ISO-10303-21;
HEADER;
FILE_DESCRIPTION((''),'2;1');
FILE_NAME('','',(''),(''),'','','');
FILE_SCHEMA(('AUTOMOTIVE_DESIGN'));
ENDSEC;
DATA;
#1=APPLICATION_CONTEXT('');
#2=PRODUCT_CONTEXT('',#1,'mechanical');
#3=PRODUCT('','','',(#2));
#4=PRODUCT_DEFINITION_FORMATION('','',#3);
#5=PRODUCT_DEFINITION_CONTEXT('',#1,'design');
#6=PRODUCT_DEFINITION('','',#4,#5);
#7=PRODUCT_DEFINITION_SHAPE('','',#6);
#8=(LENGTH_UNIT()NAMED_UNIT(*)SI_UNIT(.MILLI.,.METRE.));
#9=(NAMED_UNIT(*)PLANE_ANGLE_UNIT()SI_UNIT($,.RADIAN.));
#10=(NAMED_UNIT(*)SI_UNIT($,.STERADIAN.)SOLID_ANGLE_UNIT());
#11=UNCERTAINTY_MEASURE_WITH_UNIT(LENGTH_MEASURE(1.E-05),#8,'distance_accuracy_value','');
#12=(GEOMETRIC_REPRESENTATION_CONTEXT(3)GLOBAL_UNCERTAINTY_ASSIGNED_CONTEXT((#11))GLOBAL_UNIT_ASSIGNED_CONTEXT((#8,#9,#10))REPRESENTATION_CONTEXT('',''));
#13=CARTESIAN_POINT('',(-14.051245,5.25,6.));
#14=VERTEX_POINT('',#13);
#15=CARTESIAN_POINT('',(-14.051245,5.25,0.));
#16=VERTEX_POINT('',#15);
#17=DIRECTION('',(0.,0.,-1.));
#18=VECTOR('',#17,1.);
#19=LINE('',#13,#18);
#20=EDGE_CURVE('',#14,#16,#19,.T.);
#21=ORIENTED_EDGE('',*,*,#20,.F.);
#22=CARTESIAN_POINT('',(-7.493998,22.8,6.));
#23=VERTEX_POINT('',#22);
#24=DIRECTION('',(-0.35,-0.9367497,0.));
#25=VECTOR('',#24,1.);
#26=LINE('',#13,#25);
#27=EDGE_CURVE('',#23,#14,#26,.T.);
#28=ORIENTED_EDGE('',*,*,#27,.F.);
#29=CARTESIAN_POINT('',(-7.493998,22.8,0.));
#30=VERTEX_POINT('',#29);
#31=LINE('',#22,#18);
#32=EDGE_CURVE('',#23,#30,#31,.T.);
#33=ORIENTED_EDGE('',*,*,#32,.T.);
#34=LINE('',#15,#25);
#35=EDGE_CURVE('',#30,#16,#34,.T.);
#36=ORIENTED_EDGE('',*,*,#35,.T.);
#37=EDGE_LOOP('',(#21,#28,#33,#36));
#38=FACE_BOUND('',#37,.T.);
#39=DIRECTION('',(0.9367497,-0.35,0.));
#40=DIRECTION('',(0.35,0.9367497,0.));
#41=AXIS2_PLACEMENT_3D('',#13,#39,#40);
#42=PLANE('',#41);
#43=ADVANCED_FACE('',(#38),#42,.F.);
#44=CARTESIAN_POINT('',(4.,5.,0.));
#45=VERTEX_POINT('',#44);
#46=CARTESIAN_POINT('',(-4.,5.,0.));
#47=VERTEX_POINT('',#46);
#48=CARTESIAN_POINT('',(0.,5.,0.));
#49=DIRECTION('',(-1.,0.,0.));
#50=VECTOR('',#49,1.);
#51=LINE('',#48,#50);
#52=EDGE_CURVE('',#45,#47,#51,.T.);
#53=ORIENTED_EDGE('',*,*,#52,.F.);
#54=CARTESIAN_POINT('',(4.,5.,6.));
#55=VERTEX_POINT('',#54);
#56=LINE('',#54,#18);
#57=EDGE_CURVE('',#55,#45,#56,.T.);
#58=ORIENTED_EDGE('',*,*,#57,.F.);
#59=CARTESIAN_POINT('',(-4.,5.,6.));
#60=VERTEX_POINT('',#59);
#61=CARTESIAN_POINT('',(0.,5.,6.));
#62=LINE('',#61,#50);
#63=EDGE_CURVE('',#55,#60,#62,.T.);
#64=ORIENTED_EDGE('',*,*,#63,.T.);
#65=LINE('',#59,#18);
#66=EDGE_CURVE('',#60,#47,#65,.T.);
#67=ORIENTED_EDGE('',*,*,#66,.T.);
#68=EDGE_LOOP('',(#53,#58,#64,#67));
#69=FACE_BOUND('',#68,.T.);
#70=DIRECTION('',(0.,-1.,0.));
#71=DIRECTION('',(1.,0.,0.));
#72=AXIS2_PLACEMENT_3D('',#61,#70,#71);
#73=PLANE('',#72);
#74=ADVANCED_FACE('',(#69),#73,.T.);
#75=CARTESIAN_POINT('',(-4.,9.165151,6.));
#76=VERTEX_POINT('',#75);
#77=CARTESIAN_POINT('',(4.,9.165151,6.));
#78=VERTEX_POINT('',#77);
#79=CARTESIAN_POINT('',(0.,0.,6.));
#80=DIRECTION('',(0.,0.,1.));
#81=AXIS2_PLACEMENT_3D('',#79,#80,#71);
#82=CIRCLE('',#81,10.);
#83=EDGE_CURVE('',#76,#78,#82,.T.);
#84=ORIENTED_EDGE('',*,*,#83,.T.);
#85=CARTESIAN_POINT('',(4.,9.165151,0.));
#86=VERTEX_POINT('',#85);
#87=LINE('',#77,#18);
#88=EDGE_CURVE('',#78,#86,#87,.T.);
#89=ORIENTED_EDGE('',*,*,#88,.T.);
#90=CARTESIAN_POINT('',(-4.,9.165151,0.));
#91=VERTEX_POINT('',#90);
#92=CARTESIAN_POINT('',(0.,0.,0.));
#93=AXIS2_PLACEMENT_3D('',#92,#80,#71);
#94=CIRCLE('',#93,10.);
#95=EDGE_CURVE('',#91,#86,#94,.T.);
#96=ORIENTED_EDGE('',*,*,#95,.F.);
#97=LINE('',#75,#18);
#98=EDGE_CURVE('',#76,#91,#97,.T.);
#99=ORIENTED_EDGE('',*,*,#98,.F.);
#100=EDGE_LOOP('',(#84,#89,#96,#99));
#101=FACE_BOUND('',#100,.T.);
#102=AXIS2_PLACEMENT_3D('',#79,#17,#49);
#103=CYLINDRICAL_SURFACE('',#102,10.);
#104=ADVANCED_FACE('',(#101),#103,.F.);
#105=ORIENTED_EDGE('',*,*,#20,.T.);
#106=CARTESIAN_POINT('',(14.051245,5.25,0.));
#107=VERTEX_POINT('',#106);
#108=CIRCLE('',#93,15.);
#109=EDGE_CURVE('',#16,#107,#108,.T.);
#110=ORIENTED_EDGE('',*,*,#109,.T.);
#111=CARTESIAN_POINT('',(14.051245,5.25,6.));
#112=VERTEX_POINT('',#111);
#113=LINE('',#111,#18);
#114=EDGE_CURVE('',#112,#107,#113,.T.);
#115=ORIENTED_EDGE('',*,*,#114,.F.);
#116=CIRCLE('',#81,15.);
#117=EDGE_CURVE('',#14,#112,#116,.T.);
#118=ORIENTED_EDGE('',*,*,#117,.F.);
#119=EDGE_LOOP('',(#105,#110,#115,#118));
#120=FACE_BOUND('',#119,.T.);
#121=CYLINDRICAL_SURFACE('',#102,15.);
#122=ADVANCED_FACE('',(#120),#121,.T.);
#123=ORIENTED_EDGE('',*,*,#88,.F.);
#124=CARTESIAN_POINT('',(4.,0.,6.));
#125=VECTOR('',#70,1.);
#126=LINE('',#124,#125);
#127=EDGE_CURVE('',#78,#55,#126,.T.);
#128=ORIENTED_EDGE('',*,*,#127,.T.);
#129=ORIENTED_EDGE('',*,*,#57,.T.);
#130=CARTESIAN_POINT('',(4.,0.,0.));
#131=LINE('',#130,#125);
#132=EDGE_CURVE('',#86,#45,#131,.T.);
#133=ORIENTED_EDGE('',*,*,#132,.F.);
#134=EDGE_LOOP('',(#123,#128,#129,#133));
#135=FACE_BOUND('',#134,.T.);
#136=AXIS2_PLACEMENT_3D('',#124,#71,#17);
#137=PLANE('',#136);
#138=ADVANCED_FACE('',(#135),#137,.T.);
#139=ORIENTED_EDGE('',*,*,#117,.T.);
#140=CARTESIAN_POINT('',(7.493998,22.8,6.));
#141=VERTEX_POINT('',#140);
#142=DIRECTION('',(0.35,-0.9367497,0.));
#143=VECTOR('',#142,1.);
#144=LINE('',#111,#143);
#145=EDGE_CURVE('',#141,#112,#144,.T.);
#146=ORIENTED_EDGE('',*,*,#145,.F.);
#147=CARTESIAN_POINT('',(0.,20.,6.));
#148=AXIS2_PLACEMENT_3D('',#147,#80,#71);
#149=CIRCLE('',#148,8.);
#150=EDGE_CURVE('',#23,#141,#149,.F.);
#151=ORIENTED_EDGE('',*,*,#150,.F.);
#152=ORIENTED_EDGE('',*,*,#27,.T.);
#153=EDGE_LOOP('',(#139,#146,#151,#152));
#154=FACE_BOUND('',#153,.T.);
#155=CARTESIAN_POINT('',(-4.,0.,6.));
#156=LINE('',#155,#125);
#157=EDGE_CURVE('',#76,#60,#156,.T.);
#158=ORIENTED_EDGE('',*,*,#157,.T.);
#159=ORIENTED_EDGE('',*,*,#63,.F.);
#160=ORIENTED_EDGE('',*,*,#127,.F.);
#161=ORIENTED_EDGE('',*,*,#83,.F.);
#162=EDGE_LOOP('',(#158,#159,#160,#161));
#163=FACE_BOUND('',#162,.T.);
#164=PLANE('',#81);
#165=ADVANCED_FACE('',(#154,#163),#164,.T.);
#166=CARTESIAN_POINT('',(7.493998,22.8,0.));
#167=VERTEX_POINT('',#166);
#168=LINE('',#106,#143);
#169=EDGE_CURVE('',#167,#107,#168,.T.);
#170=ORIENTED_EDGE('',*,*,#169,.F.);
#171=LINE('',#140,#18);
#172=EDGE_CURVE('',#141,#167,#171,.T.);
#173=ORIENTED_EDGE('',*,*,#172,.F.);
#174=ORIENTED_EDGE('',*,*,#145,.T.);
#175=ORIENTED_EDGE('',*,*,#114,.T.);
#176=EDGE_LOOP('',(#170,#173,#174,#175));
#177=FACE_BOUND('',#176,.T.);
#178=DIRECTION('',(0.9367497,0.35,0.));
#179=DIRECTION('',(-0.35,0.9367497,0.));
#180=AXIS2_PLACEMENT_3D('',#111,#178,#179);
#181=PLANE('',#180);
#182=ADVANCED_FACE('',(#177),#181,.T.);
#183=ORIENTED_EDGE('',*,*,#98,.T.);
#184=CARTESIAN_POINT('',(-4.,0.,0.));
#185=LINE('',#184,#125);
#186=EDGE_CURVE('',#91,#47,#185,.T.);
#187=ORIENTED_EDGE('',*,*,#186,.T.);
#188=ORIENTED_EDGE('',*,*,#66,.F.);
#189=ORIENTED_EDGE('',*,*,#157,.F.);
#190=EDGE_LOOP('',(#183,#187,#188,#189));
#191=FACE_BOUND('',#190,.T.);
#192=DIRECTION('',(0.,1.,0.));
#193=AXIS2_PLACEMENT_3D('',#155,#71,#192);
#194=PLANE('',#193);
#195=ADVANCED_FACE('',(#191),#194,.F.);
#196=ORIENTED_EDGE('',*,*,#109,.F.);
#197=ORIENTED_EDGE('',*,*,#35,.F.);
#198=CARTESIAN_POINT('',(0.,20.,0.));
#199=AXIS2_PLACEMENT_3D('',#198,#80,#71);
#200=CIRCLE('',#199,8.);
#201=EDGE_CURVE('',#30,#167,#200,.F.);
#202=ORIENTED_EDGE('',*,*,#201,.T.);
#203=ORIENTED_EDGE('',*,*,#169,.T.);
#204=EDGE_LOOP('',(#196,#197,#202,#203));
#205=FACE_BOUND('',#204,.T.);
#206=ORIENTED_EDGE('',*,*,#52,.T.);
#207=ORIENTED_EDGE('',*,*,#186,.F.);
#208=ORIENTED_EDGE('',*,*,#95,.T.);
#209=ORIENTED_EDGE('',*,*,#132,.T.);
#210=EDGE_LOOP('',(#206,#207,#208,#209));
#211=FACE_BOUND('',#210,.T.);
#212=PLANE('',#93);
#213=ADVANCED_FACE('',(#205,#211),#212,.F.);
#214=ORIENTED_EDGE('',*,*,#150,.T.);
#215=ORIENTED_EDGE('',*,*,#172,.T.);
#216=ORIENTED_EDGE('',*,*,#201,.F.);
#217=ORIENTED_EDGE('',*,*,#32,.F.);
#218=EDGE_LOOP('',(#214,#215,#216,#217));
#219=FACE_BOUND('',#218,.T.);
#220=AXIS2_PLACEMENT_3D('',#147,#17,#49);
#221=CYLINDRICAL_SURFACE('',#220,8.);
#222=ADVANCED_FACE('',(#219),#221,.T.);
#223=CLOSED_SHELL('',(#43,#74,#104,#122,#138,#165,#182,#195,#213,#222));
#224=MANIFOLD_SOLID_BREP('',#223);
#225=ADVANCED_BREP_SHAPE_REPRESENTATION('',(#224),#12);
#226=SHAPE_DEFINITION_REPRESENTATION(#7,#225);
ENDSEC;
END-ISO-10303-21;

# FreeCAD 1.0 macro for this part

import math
import FreeCAD as App
import Part
import Sketcher
from FreeCAD import Vector
Q = App.Units.Quantity

doc = App.newDocument("Part")
params = doc.addObject("Spreadsheet::Sheet", "Params")
for row, (alias, value) in enumerate([
    ("sketch1_radius", "8 mm"),
    ("sketch1_radius2", "15 mm"),
    ("sketch1_radius3", "10 mm"),
    ("sketch1_width", "8 mm"),
    ("pad1_length", "6 mm"),
], start=1):
    params.set(f"A{row}", alias)
    params.set(f"B{row}", "=" + value)
    params.setAlias(f"B{row}", alias)

body = doc.addObject("PartDesign::Body", "Body")

# Sketch on XY plane
sketch1 = doc.addObject("Sketcher::SketchObject", "Sketch")
body.addObject(sketch1)
sketch1.AttachmentSupport = (doc.XY_Plane, [""])
sketch1.MapMode = "FlatFace"
sketch1.addGeometry([
    Part.ArcOfCircle(Part.Circle(Vector(0, 20, 0), Vector(0, 0, 1), 8), math.radians(20.487315), math.radians(159.512685)),  # 0
    Part.LineSegment(Vector(-7.493998, 22.8, 0), Vector(-14.051245, 5.25, 0)),  # 1
    Part.ArcOfCircle(Part.Circle(Vector(0, 0, 0), Vector(0, 0, 1), 15), math.radians(159.512685), math.radians(380.487315)),  # 2
    Part.LineSegment(Vector(14.051245, 5.25, 0), Vector(7.493998, 22.8, 0)),  # 3
    Part.ArcOfCircle(Part.Circle(Vector(0, 0, 0), Vector(0, 0, 1), 10), math.radians(113.578178), math.radians(426.421822)),  # 4
    Part.LineSegment(Vector(-4, 9.165151, 0), Vector(-4, 5, 0)),  # 5
    Part.LineSegment(Vector(-4, 5, 0), Vector(4, 5, 0)),  # 6
    Part.LineSegment(Vector(4, 5, 0), Vector(4, 9.165151, 0)),  # 7
], False)
sketch1.addConstraint([
    Sketcher.Constraint("Tangent", 0, 2, 1, 1),
    Sketcher.Constraint("Tangent", 1, 2, 2, 1),
    Sketcher.Constraint("Tangent", 2, 2, 3, 1),
    Sketcher.Constraint("Tangent", 3, 2, 0, 1),
    Sketcher.Constraint("Coincident", 4, 1, 5, 1),
    Sketcher.Constraint("Coincident", 5, 2, 6, 1),
    Sketcher.Constraint("Coincident", 6, 2, 7, 1),
    Sketcher.Constraint("Coincident", 7, 2, 4, 2),
    Sketcher.Constraint("Vertical", 5),
    Sketcher.Constraint("Horizontal", 6),
    Sketcher.Constraint("Vertical", 7),
    Sketcher.Constraint("Coincident", 2, 3, -1, 1),
    Sketcher.Constraint("Coincident", 4, 3, -1, 1),
    Sketcher.Constraint("PointOnObject", 0, 3, -2),
    Sketcher.Constraint("Horizontal", 4, 1, 7, 2),
    Sketcher.Constraint("Radius", 0, Q("8 mm")),
    Sketcher.Constraint("Radius", 2, Q("15 mm")),
    Sketcher.Constraint("Radius", 4, Q("10 mm")),
    Sketcher.Constraint("DistanceX", 6, 1, 6, 2, Q("8 mm")),
    Sketcher.Constraint("DistanceY", -1, 1, 0, 3, Q("20 mm")),
    Sketcher.Constraint("DistanceY", -1, 1, 5, 2, Q("5 mm")),
])
sketch1.setExpression("Constraints[15]", "Params.sketch1_radius")
sketch1.setExpression("Constraints[16]", "Params.sketch1_radius2")
sketch1.setExpression("Constraints[17]", "Params.sketch1_radius3")
sketch1.setExpression("Constraints[18]", "Params.sketch1_width")
pad1 = doc.addObject("PartDesign::Pad", "Pad")
body.addObject(pad1)
pad1.Profile = sketch1
pad1.setExpression("Length", "Params.pad1_length")

doc.recompute()
